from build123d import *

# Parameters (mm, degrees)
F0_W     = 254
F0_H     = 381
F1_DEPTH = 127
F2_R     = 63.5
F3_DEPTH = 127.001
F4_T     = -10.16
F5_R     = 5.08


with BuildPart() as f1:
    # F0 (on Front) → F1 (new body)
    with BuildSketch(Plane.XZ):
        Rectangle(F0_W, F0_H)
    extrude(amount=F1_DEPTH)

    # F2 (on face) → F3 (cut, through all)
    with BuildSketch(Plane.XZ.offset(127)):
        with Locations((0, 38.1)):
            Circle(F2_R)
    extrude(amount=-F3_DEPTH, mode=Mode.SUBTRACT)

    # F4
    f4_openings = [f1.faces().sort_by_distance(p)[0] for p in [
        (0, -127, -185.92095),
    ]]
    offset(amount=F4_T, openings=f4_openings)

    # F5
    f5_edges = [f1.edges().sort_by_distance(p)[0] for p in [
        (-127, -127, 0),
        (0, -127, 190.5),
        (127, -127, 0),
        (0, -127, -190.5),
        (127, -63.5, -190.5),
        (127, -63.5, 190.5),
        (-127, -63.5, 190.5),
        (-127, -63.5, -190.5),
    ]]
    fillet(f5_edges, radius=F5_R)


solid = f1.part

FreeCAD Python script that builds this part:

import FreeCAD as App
import Part
import Sketcher

V = App.Vector
Q = App.Units.Quantity


def edges_at(feature, points):
    """Names of the edges that pass closest to the given points."""
    edges = feature.Shape.Edges
    near = lambda p: min(range(len(edges)), key=lambda i: edges[i].distToShape(Part.Vertex(*p))[0])
    return sorted({f"Edge{near(p) + 1}" for p in points})


def faces_at(feature, points):
    """Names of the faces that lie closest to the given points."""
    faces = feature.Shape.Faces
    near = lambda p: min(range(len(faces)), key=lambda i: faces[i].distToShape(Part.Vertex(*p))[0])
    return sorted({f"Face{near(p) + 1}" for p in points})


def add_polygon(sketch, points):
    """Adds a closed chain of lines whose ends are joined by coincident constraints."""
    first, n = sketch.GeometryCount, len(points)
    for a, b in zip(points, points[1:] + points[:1]):
        sketch.addGeometry(Part.LineSegment(App.Vector(*a, 0), App.Vector(*b, 0)), False)
    for i in range(n):
        sketch.addConstraint(Sketcher.Constraint("Coincident", first + i, 2, first + (i + 1) % n, 1))

doc = App.newDocument("Part")
body = doc.addObject("PartDesign::Body", "Body")

# Sketch on XZ plane
sketch1 = body.newObject("Sketcher::SketchObject", "Sketch")
sketch1.AttachmentSupport = (doc.getObject("XZ_Plane"), [""])
sketch1.MapMode = "FlatFace"
add_polygon(sketch1, [(-127, 190), (-127, -190), (127, -190), (127, 190)])  # lines 0-3
sketch1.addConstraint([
    Sketcher.Constraint("Vertical", 0),
    Sketcher.Constraint("Horizontal", 1),
    Sketcher.Constraint("Vertical", 2),
    Sketcher.Constraint("Horizontal", 3),
    Sketcher.Constraint("Symmetric", 0, 2, 2, 2, -1, 1),
    Sketcher.Constraint("DistanceX", 1, 1, 1, 2, Q("10 in")),
    Sketcher.Constraint("DistanceY", 0, 2, 0, 1, Q("15 in")),
])
pad1 = body.newObject("PartDesign::Pad", "Pad")
pad1.Profile = sketch1
pad1.Length = Q("5 in")

# Sketch on XZ plane
sketch2 = body.newObject("Sketcher::SketchObject", "Sketch001")
sketch2.AttachmentSupport = (doc.getObject("XZ_Plane"), [""])
sketch2.MapMode = "FlatFace"
sketch2.AttachmentOffset = App.Placement(V(0, 0, 5 * 25.4), App.Rotation())
sketch2.addGeometry(Part.Circle(V(0, 38, 0), V(0, 0, 1), 64), False)
sketch2.addConstraint([
    Sketcher.Constraint("PointOnObject", 0, 3, -2),
    Sketcher.Constraint("Diameter", 0, Q("5 in")),
    Sketcher.Constraint("DistanceY", -1, 1, 0, 3, Q("1.5 in")),
])
pocket1 = body.newObject("PartDesign::Pocket", "Pocket")
pocket1.Profile = sketch2
pocket1.Type = "ThroughAll"
doc.recompute()

thickness = body.newObject("PartDesign::Thickness", "Thickness")
thickness.Base = (pocket1, faces_at(pocket1, [(-50.8, -127, -76.2)]))
thickness.Value = Q("0.4 in")
thickness.Reversed = True
thickness.Join = "Arc"
doc.recompute()

fillet = body.newObject("PartDesign::Fillet", "Fillet")
fillet.Base = (thickness, edges_at(thickness, [
    (-127, -127, 0),
    (0, -127, 190.5),
    (127, -127, 0),
    (0, -127, -190.5),
    (127, -63.5, -190.5),
    (127, -63.5, 190.5),
    (-127, -63.5, 190.5),
    (-127, -63.5, -190.5),
]))
fillet.Radius = Q("0.2 in")

doc.recompute()
